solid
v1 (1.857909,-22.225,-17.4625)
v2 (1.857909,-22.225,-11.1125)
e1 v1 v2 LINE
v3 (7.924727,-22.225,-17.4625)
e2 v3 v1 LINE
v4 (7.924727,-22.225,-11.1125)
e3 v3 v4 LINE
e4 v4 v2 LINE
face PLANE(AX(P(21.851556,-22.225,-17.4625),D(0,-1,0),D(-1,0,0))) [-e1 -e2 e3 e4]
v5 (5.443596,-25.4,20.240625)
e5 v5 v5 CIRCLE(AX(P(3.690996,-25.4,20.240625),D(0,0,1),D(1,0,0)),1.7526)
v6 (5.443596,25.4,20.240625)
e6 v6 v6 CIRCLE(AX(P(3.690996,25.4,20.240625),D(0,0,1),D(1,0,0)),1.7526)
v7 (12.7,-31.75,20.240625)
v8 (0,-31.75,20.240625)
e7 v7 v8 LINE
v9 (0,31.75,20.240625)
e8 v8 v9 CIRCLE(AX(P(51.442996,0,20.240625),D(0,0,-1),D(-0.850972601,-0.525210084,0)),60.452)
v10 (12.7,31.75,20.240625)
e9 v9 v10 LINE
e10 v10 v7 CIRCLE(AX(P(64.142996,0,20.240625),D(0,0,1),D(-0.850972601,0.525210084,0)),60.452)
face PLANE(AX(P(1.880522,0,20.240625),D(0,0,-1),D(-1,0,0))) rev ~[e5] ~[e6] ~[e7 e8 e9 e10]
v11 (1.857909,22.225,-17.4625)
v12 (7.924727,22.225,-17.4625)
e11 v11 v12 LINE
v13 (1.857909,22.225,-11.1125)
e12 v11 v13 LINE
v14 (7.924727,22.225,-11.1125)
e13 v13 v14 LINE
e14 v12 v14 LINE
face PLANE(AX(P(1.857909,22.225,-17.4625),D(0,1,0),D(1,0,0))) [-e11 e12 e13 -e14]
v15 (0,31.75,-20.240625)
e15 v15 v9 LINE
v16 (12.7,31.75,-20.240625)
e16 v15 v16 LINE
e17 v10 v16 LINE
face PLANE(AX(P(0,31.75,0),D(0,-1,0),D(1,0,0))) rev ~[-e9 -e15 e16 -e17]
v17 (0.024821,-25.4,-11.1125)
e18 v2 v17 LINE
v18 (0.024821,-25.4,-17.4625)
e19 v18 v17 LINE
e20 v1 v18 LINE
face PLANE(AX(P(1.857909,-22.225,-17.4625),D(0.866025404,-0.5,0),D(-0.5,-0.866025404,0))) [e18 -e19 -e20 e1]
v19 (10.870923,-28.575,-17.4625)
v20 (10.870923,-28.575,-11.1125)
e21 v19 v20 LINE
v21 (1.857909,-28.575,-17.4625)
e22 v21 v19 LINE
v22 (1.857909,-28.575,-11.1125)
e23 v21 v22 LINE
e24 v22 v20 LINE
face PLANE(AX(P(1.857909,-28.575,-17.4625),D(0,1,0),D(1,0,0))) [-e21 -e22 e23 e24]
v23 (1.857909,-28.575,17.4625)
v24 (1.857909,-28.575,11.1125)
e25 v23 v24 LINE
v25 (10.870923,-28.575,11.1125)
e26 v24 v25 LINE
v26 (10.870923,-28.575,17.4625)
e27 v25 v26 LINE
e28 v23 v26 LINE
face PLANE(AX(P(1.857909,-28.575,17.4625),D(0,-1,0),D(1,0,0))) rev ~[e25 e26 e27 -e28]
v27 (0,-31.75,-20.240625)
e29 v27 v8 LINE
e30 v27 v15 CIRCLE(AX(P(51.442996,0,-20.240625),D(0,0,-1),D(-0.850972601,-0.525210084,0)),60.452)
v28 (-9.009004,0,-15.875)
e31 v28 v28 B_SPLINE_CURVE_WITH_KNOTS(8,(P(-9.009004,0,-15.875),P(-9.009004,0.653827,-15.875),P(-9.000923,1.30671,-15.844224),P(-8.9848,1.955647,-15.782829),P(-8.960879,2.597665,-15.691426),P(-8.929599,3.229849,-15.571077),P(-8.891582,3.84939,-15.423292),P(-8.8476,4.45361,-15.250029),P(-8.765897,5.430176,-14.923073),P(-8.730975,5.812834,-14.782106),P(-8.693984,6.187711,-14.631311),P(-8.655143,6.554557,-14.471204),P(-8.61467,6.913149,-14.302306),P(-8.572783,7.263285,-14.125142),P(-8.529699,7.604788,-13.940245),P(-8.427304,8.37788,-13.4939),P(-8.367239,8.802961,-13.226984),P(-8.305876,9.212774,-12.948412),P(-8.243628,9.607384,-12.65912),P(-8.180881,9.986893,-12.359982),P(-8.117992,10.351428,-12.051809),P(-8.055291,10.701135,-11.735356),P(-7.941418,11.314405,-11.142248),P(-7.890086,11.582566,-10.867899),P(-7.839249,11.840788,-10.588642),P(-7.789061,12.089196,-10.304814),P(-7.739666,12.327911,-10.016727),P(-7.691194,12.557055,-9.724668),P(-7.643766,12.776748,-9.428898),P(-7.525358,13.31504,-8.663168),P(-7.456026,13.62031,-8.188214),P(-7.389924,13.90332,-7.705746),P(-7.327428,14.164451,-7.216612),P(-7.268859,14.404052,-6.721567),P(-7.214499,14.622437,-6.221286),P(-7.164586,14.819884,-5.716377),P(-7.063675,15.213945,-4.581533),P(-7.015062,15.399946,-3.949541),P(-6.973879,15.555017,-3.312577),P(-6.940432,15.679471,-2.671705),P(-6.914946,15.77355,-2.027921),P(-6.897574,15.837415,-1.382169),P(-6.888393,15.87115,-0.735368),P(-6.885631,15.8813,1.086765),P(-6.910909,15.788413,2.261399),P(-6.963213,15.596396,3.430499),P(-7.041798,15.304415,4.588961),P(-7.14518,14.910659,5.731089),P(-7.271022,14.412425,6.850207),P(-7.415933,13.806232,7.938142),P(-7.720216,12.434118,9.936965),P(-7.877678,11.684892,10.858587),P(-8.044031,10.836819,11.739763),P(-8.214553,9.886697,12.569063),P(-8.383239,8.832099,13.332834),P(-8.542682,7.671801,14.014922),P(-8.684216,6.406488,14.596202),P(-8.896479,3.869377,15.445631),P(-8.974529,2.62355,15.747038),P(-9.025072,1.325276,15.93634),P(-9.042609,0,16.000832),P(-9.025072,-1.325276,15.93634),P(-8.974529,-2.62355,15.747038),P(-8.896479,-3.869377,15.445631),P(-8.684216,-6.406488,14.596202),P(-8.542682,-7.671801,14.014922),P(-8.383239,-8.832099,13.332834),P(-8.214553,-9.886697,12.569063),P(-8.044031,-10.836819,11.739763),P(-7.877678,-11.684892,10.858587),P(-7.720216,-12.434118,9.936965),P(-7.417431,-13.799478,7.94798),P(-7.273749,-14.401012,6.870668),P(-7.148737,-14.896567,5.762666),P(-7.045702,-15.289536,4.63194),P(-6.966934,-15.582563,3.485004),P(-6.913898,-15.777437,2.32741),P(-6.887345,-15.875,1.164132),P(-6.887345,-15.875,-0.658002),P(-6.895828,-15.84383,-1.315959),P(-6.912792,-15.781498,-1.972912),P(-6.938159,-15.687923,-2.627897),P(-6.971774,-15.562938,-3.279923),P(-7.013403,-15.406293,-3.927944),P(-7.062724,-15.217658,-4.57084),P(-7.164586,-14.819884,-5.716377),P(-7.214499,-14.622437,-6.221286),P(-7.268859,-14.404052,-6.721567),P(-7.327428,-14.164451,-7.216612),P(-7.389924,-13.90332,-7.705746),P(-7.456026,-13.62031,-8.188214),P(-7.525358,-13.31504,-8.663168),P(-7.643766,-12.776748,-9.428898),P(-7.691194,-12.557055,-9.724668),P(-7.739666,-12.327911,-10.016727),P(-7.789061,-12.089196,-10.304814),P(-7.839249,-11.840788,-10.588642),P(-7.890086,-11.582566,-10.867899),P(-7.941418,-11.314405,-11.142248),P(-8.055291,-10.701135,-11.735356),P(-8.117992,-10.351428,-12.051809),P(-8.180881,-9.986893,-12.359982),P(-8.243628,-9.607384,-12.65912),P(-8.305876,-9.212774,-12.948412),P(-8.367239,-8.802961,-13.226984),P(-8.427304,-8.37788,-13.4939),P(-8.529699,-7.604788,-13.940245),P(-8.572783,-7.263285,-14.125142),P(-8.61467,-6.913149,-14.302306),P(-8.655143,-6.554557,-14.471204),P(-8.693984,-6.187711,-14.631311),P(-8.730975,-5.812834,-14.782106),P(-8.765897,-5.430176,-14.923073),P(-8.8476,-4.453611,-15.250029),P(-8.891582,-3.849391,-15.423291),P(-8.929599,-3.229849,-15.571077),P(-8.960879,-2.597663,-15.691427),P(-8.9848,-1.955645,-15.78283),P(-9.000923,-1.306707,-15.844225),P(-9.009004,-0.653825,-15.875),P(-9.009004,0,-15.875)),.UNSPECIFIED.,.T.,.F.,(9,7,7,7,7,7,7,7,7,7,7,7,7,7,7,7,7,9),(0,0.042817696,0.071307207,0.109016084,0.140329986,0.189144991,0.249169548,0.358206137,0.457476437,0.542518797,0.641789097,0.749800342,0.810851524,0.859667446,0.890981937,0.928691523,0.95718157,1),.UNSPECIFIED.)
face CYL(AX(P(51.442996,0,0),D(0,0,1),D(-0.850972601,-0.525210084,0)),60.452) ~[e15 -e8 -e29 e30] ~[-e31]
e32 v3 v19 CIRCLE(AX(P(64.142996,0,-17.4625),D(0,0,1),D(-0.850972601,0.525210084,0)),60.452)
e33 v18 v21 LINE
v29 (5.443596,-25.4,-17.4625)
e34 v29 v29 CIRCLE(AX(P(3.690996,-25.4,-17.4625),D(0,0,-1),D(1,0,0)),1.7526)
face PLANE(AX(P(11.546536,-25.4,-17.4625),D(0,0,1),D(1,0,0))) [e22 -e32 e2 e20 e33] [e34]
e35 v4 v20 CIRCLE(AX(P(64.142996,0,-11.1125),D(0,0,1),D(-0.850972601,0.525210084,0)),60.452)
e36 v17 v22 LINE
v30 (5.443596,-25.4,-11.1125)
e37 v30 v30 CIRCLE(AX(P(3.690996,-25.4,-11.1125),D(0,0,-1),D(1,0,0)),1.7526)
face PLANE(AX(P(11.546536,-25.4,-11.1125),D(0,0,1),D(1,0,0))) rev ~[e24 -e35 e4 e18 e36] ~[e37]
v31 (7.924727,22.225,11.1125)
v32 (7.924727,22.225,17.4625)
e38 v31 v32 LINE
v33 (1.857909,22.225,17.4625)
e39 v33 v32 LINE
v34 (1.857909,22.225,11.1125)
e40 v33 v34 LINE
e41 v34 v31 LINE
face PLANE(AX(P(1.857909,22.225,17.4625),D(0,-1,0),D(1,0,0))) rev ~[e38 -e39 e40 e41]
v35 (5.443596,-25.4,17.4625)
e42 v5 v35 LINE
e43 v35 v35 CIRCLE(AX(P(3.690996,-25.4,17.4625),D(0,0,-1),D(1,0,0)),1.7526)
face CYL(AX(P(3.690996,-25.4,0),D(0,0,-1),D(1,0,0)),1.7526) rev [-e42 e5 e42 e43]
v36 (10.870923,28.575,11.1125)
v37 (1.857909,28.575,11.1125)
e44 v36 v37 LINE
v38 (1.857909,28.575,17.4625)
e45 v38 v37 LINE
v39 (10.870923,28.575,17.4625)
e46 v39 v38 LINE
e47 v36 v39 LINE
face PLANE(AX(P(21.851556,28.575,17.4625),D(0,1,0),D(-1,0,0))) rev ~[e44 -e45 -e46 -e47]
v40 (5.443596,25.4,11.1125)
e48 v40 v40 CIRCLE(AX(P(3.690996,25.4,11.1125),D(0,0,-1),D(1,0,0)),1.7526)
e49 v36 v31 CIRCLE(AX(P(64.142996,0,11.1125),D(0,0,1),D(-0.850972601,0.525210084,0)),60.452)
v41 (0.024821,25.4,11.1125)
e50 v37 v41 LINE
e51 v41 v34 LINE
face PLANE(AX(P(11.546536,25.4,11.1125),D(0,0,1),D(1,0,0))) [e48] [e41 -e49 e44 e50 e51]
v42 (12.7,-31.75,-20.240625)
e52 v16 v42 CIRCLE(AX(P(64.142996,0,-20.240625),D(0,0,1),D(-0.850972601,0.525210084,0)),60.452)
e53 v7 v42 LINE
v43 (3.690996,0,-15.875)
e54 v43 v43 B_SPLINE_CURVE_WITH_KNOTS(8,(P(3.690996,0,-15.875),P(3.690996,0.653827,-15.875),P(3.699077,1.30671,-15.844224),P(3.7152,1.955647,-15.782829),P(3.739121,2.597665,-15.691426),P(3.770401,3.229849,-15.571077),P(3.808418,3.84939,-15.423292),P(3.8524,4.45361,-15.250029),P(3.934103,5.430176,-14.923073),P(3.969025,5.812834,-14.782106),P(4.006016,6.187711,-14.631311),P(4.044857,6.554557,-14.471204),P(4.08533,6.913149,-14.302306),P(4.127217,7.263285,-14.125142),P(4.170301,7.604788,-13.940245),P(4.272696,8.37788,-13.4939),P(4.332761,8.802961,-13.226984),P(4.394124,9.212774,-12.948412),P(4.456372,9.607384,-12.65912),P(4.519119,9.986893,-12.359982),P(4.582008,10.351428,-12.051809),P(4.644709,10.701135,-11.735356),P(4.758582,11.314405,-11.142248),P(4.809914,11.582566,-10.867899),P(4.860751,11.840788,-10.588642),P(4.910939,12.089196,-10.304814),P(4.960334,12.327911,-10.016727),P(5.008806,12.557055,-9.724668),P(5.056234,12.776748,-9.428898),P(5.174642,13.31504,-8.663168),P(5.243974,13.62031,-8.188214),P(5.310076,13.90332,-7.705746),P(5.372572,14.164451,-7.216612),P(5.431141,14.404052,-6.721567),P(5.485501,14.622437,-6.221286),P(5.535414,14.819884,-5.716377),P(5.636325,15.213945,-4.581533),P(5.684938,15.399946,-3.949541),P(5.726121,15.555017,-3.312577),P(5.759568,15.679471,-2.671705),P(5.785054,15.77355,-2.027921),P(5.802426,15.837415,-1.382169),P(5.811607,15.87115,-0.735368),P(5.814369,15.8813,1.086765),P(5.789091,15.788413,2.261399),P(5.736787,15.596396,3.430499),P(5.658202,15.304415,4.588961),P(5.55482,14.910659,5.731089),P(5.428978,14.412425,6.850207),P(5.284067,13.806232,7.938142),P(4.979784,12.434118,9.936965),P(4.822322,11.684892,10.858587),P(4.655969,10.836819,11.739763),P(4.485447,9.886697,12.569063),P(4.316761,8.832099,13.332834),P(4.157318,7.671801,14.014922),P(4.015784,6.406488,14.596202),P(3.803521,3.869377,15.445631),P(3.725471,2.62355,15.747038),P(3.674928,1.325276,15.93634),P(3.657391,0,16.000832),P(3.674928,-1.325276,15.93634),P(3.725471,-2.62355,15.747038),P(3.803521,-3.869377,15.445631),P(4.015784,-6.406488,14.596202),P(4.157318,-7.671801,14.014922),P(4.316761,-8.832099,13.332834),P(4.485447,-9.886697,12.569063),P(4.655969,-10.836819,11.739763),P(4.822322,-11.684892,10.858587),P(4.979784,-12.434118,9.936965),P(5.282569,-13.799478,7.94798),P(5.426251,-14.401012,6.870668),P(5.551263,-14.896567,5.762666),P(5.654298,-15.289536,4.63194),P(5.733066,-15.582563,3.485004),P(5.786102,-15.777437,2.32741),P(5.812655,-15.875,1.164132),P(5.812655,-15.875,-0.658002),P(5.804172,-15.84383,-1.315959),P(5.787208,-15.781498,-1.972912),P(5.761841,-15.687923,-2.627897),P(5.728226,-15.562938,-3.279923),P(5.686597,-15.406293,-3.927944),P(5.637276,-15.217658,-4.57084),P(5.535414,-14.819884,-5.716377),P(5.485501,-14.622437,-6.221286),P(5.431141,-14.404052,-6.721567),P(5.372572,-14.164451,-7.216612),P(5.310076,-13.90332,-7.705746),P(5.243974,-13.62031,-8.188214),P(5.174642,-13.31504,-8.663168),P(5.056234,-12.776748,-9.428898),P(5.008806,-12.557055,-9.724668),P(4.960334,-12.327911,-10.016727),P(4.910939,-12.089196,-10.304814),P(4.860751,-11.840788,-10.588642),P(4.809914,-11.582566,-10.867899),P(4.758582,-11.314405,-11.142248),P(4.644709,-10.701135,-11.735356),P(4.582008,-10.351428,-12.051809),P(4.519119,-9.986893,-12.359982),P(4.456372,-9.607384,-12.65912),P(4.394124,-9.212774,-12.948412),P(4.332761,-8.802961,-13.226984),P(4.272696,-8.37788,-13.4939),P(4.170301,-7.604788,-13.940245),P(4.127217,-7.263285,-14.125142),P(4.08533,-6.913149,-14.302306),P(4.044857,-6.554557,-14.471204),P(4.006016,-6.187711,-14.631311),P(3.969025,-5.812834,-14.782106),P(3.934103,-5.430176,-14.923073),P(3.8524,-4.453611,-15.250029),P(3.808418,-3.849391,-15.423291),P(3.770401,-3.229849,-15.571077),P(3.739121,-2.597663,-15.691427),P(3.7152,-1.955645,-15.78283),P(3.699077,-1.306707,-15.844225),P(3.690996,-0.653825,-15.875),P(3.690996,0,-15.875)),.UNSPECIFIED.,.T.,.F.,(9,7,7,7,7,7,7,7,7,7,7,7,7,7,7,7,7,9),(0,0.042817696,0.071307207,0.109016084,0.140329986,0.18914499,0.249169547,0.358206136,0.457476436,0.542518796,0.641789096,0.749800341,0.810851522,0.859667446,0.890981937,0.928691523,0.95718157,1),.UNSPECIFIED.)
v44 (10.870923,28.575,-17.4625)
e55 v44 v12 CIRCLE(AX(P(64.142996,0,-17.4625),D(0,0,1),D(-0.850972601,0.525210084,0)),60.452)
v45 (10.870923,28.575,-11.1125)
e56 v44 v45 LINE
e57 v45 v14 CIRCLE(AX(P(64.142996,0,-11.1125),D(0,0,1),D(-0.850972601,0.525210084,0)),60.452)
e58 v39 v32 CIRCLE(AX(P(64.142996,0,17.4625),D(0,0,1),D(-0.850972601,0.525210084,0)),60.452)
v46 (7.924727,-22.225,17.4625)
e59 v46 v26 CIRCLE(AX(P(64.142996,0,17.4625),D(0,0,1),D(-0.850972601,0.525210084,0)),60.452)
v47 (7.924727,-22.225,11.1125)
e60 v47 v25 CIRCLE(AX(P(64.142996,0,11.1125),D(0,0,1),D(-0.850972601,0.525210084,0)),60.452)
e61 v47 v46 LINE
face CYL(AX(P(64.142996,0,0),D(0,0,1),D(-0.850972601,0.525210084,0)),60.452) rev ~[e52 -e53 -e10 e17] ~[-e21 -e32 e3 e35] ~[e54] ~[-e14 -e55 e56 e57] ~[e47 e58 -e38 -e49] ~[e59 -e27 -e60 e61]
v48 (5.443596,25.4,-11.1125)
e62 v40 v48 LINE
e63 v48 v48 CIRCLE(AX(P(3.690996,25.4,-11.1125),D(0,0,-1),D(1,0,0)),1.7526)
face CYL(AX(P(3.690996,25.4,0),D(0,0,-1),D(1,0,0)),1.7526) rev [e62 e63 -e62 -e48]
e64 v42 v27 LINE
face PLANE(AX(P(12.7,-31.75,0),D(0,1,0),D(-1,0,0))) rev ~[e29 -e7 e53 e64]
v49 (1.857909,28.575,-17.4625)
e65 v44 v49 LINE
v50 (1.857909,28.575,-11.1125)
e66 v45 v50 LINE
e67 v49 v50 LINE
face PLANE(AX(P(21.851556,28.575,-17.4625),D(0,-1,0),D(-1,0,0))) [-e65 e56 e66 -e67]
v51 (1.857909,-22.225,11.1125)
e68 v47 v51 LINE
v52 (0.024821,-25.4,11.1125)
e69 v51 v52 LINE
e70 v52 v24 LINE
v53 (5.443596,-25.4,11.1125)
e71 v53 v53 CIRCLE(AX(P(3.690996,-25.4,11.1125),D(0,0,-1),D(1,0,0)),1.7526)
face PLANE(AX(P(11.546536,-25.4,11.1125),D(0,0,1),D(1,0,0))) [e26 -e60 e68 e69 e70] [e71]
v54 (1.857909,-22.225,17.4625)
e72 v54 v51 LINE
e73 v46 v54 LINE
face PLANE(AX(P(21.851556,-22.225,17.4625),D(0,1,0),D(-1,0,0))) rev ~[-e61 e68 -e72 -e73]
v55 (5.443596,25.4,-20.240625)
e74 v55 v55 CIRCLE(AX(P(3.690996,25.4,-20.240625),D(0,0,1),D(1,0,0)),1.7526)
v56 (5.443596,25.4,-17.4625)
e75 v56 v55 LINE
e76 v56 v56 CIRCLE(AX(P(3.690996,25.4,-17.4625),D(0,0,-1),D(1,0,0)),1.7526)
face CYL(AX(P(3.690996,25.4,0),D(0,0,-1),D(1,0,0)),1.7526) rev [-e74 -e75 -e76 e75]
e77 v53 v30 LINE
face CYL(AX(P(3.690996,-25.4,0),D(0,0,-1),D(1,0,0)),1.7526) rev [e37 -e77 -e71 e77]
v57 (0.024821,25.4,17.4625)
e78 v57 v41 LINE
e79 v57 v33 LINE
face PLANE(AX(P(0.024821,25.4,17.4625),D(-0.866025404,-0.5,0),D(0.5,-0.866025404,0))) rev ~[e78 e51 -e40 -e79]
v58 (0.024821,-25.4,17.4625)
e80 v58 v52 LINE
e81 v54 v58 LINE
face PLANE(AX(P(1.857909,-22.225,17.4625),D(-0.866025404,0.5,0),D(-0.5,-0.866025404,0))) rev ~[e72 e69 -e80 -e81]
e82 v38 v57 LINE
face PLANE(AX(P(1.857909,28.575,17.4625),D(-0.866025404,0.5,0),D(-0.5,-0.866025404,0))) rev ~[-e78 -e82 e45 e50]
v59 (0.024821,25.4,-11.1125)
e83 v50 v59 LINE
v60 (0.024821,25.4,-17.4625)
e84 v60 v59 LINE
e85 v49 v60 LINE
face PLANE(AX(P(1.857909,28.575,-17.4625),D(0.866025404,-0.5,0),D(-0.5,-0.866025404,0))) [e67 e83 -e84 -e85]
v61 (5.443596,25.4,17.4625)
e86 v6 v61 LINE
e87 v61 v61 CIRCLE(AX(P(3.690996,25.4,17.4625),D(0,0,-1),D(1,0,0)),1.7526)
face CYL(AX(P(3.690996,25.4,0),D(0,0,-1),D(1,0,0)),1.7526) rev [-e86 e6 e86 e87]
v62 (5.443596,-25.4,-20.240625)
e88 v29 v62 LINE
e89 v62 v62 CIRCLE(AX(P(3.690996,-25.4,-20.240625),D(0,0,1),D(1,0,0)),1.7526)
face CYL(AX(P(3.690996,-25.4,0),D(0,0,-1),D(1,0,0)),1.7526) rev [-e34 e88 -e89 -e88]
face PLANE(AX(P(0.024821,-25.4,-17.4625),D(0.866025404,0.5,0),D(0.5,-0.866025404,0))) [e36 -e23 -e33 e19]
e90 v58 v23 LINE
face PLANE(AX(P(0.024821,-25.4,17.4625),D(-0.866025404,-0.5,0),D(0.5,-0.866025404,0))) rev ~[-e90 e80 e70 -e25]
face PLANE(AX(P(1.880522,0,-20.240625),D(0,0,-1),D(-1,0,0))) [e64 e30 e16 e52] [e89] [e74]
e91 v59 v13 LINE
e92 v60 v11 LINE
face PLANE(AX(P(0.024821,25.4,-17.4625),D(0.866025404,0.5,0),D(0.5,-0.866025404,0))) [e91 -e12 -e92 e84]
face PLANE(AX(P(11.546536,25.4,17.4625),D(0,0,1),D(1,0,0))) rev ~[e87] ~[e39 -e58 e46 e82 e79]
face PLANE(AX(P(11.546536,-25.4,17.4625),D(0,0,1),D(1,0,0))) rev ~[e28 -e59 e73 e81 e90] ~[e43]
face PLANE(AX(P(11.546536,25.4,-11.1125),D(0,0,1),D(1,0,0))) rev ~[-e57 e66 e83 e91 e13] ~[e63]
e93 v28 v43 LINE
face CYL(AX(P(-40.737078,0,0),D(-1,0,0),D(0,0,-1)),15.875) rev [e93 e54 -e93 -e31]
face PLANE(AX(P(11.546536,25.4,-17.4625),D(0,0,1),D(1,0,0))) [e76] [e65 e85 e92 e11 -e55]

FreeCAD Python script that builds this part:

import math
import FreeCAD as App
import Part
import Sketcher

V = App.Vector
Q = App.Units.Quantity


def add_polygon(sketch, points):
    """Adds a closed chain of lines whose ends are joined by coincident constraints."""
    first, n = sketch.GeometryCount, len(points)
    for a, b in zip(points, points[1:] + points[:1]):
        sketch.addGeometry(Part.LineSegment(App.Vector(*a, 0), App.Vector(*b, 0)), False)
    for i in range(n):
        sketch.addConstraint(Sketcher.Constraint("Coincident", first + i, 2, first + (i + 1) % n, 1))

doc = App.newDocument("Part")
body = doc.addObject("PartDesign::Body", "Body")

# Sketch on XY plane
sketch1 = body.newObject("Sketcher::SketchObject", "Sketch")
sketch1.AttachmentSupport = (doc.getObject("XY_Plane"), [""])
sketch1.MapMode = "FlatFace"
sketch1.addGeometry(Part.LineSegment(V(12.7, 31.75, 0), V(0, 31.75, 0)), False)
sketch1.addGeometry(Part.ArcOfCircle(Part.Circle(V(51.442996, 0, 0), V(0, 0, 1), 60.452), math.radians(148.317613), math.radians(211.682387)), False)
sketch1.addGeometry(Part.LineSegment(V(0, -31.75, 0), V(12.7, -31.75, 0)), False)
sketch1.addGeometry(Part.ArcOfCircle(Part.Circle(V(64.142996, 0, 0), V(0, 0, 1), 60.452), math.radians(148.317613), math.radians(211.682387)), False)
sketch1.addGeometry(Part.Circle(V(3.690996, -25.4, 0), V(0, 0, 1), 1.7526), False)
sketch1.addGeometry(Part.Circle(V(3.690996, 25.4, 0), V(0, 0, 1), 1.7526), False)
sketch1.addConstraint(Sketcher.Constraint("Coincident", 0, 2, 1, 1))
sketch1.addConstraint(Sketcher.Constraint("Coincident", 1, 2, 2, 1))
sketch1.addConstraint(Sketcher.Constraint("Coincident", 2, 2, 3, 2))
sketch1.addConstraint(Sketcher.Constraint("Coincident", 3, 1, 0, 1))
sketch1.addConstraint(Sketcher.Constraint("Horizontal", 0))
sketch1.addConstraint(Sketcher.Constraint("Horizontal", 2))
sketch1.addConstraint(Sketcher.Constraint("Equal", 1, 3))
sketch1.addConstraint(Sketcher.Constraint("Equal", 4, 5))
sketch1.addConstraint(Sketcher.Constraint("Symmetric", 0, 2, 1, 2, -1, 1))
sketch1.addConstraint(Sketcher.Constraint("Symmetric", 4, 3, 5, 3, -1))
sketch1.addConstraint(Sketcher.Constraint("PointOnObject", 1, 3, -1))
sketch1.addConstraint(Sketcher.Constraint("PointOnObject", 3, 3, -1))
sketch1.addConstraint(Sketcher.Constraint("Radius", 1, Q("2.38 in")))
sketch1.addConstraint(Sketcher.Constraint("Diameter", 4, Q("0.138 in")))
sketch1.addConstraint(Sketcher.Constraint("DistanceX", 0, 2, 0, 1, Q("0.5 in")))
sketch1.addConstraint(Sketcher.Constraint("DistanceY", 4, 3, -1, 1, Q("1 in")))
sketch1.addConstraint(Sketcher.Constraint("DistanceY", 1, 2, 0, 2, Q("2.5 in")))
sketch1.addConstraint(Sketcher.Constraint("DistanceX", 4, 3, 1, 3, Q("1.88 in")))
pad1 = body.newObject("PartDesign::Pad", "Pad")
pad1.Profile = sketch1
pad1.Length = Q("1.59375 in")
pad1.Midplane = True

# Sketch on XY plane
sketch2 = body.newObject("Sketcher::SketchObject", "Sketch001")
sketch2.AttachmentSupport = (doc.getObject("XY_Plane"), [""])
sketch2.MapMode = "FlatFace"
sketch2.AttachmentOffset = App.Placement(V(0, 0, 0.6875 * 25.4), App.Rotation())
add_polygon(sketch2, [(21.851556, 28.575), (1.857909, 28.575), (0.024821, 25.4), (1.857909, 22.225), (21.851556, 22.225)])  # lines 0-4
add_polygon(sketch2, [(21.851556, -28.575), (21.851556, -22.225), (1.857909, -22.225), (0.024821, -25.4), (1.857909, -28.575)])  # lines 5-9
sketch2.addConstraint(Sketcher.Constraint("Horizontal", 0))
sketch2.addConstraint(Sketcher.Constraint("Horizontal", 3))
sketch2.addConstraint(Sketcher.Constraint("Vertical", 4))
sketch2.addConstraint(Sketcher.Constraint("Vertical", 5))
sketch2.addConstraint(Sketcher.Constraint("Horizontal", 6))
sketch2.addConstraint(Sketcher.Constraint("Horizontal", 9))
sketch2.addConstraint(Sketcher.Constraint("Symmetric", 3, 2, 5, 2, -1))
sketch2.addConstraint(Sketcher.Constraint("Symmetric", 1, 2, 7, 2, -1))
sketch2.addConstraint(Sketcher.Constraint("Symmetric", 0, 2, 8, 2, -1))
sketch2.addConstraint(Sketcher.Constraint("Parallel", 1, 7))
sketch2.addConstraint(Sketcher.Constraint("Parallel", 2, 8))
sketch2.addConstraint(Sketcher.Constraint("Vertical", 0, 2, 2, 2))
sketch2.addConstraint(Sketcher.Constraint("DistanceY", -1, 1, 1, 2, Q("1 in")))
sketch2.addConstraint(Sketcher.Constraint("Angle", 1, Q("-120 deg")))
sketch2.addConstraint(Sketcher.Constraint("DistanceY", 4, 1, 4, 2, Q("0.25 in")))
sketch2.addConstraint(Sketcher.Constraint("DistanceX", 0, 2, 0, 1, Q("19.993647 mm")))
sketch2.addConstraint(Sketcher.Constraint("DistanceX", -1, 1, 0, 2, Q("1.857909 mm")))
pocket1 = body.newObject("PartDesign::Pocket", "Pocket")
pocket1.Profile = sketch2
pocket1.Length = Q("0.25 in")

# Sketch on XY plane
sketch3 = body.newObject("Sketcher::SketchObject", "Sketch002")
sketch3.AttachmentSupport = (doc.getObject("XY_Plane"), [""])
sketch3.MapMode = "FlatFace"
sketch3.AttachmentOffset = App.Placement(V(0, 0, -0.6875 * 25.4), App.Rotation())
add_polygon(sketch3, [(21.851556, 28.575), (1.857909, 28.575), (0.024821, 25.4), (1.857909, 22.225), (21.851556, 22.225)])  # lines 0-4
add_polygon(sketch3, [(21.851556, -28.575), (21.851556, -22.225), (1.857909, -22.225), (0.024821, -25.4), (1.857909, -28.575)])  # lines 5-9
sketch3.addConstraint(Sketcher.Constraint("Horizontal", 0))
sketch3.addConstraint(Sketcher.Constraint("Horizontal", 3))
sketch3.addConstraint(Sketcher.Constraint("Vertical", 4))
sketch3.addConstraint(Sketcher.Constraint("Vertical", 5))
sketch3.addConstraint(Sketcher.Constraint("Horizontal", 6))
sketch3.addConstraint(Sketcher.Constraint("Horizontal", 9))
sketch3.addConstraint(Sketcher.Constraint("Symmetric", 3, 2, 5, 2, -1))
sketch3.addConstraint(Sketcher.Constraint("Symmetric", 1, 2, 7, 2, -1))
sketch3.addConstraint(Sketcher.Constraint("Symmetric", 0, 2, 8, 2, -1))
sketch3.addConstraint(Sketcher.Constraint("Parallel", 1, 7))
sketch3.addConstraint(Sketcher.Constraint("Parallel", 2, 8))
sketch3.addConstraint(Sketcher.Constraint("Vertical", 0, 2, 2, 2))
sketch3.addConstraint(Sketcher.Constraint("DistanceY", -1, 1, 1, 2, Q("1 in")))
sketch3.addConstraint(Sketcher.Constraint("Angle", 1, Q("-120 deg")))
sketch3.addConstraint(Sketcher.Constraint("DistanceY", 4, 1, 4, 2, Q("0.25 in")))
sketch3.addConstraint(Sketcher.Constraint("DistanceX", 0, 2, 0, 1, Q("19.993647 mm")))
sketch3.addConstraint(Sketcher.Constraint("DistanceX", -1, 1, 0, 2, Q("1.857909 mm")))
pocket2 = body.newObject("PartDesign::Pocket", "Pocket001")
pocket2.Profile = sketch3
pocket2.Length = Q("0.25 in")
pocket2.Reversed = True

# Sketch on YZ plane
sketch4 = body.newObject("Sketcher::SketchObject", "Sketch003")
sketch4.AttachmentSupport = (doc.getObject("YZ_Plane"), [""])
sketch4.MapMode = "FlatFace"
sketch4.addGeometry(Part.Circle(V(0, 0, 0), V(0, 0, 1), 15.875), False)
sketch4.addConstraint(Sketcher.Constraint("Coincident", 0, 3, -1, 1))
sketch4.addConstraint(Sketcher.Constraint("Diameter", 0, Q("1.25 in")))
pocket3 = body.newObject("PartDesign::Pocket", "Pocket002")
pocket3.Profile = sketch4
pocket3.Type = "ThroughAll"
pocket3.Midplane = True

doc.recompute()
